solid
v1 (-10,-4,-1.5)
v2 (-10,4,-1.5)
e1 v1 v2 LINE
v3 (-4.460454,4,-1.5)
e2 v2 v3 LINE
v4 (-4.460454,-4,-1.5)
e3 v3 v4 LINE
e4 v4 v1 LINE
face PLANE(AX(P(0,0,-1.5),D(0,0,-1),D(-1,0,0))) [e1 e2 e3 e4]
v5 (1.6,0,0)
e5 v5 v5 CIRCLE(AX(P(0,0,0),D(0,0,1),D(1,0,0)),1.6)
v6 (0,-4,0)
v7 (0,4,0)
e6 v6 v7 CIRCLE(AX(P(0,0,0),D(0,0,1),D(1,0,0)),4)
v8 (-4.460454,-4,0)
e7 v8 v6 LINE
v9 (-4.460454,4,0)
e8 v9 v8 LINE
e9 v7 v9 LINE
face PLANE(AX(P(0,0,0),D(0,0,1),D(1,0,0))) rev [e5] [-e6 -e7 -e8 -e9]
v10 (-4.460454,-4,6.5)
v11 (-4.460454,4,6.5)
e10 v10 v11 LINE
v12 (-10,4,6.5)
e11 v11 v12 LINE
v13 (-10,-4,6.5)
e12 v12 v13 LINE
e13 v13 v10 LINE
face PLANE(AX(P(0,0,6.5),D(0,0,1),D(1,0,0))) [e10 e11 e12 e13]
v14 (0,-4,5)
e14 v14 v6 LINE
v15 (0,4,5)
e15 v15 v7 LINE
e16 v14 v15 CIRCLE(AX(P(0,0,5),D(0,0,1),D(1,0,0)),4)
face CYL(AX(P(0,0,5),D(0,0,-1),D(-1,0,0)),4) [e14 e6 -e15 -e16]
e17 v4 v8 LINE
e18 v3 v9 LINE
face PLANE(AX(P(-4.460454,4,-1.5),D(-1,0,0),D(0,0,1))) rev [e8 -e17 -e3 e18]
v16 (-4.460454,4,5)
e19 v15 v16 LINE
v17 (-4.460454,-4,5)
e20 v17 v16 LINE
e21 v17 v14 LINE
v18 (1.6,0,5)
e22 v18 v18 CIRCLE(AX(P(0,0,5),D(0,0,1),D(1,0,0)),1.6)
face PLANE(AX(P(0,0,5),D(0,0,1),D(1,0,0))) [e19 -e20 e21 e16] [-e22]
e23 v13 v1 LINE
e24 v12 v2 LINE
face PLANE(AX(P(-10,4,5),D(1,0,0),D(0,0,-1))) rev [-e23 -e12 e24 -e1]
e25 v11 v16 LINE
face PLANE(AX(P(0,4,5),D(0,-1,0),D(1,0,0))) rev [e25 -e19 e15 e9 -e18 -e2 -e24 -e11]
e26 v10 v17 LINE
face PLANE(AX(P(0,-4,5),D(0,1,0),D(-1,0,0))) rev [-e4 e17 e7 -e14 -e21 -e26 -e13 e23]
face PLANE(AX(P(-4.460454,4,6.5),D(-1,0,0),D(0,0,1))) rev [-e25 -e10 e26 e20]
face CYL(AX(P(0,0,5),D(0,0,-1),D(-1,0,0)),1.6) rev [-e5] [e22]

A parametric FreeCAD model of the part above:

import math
import FreeCAD as App
import Part
import Sketcher


def add_polygon(sketch, points):
    """Adds a closed chain of lines whose ends are joined by coincident constraints."""
    first, n = sketch.GeometryCount, len(points)
    for a, b in zip(points, points[1:] + points[:1]):
        sketch.addGeometry(Part.LineSegment(App.Vector(*a, 0), App.Vector(*b, 0)), False)
    for i in range(n):
        sketch.addConstraint(Sketcher.Constraint("Coincident", first + i, 2, first + (i + 1) % n, 1))

doc = App.newDocument("Part")
body = doc.addObject("PartDesign::Body", "Body")

sketch1 = body.newObject("Sketcher::SketchObject", "Sketch")
sketch1.AttachmentSupport = (doc.getObject("XY_Plane"), [""])
sketch1.MapMode = "FlatFace"
sketch1.addGeometry([
    Part.LineSegment(App.Vector(0, 4, 0), App.Vector(-10, 4, 0)),
    Part.LineSegment(App.Vector(-10, 4, 0), App.Vector(-10, -4, 0)),
    Part.LineSegment(App.Vector(-10, -4, 0), App.Vector(0, -4, 0)),
    Part.ArcOfCircle(Part.Circle(App.Vector(0, 0, 0), App.Vector(0, 0, 1), 4), math.radians(-90), math.radians(90)),
    Part.Circle(App.Vector(0, 0, 0), App.Vector(0, 0, 1), 1.6),
], False)
sketch1.addConstraint([
    Sketcher.Constraint("Coincident", 0, 2, 1, 1),
    Sketcher.Constraint("Coincident", 1, 2, 2, 1),
    Sketcher.Constraint("Tangent", 2, 2, 3, 1),
    Sketcher.Constraint("Tangent", 3, 2, 0, 1),
    Sketcher.Constraint("Horizontal", 0),
    Sketcher.Constraint("Vertical", 1),
    Sketcher.Constraint("Horizontal", 2),
    Sketcher.Constraint("Coincident", 3, 3, -1, 1),
    Sketcher.Constraint("Coincident", 4, 3, -1, 1),
    Sketcher.Constraint("Radius", 3, 4.0),
    Sketcher.Constraint("Diameter", 4, 3.2),
    Sketcher.Constraint("DistanceX", 0, 2, 0, 1, 10.0),
])
pad1 = body.newObject("PartDesign::Pad", "Pad")
pad1.Profile = sketch1
pad1.Length = 5

sketch2 = body.newObject("Sketcher::SketchObject", "Sketch001")
sketch2.AttachmentSupport = (doc.getObject("XY_Plane"), [""])
sketch2.MapMode = "FlatFace"
sketch2.AttachmentOffset = App.Placement(App.Vector(0, 0, 5), App.Rotation())
add_polygon(sketch2, [(-10, 4), (-10, -4), (-4, -4), (-4, 4)])
sketch2.addConstraint([
    Sketcher.Constraint("Vertical", 0),
    Sketcher.Constraint("Horizontal", 1),
    Sketcher.Constraint("Vertical", 2),
    Sketcher.Constraint("Horizontal", 3),
    Sketcher.Constraint("DistanceY", 0, 2, 0, 1, 8.0),
    Sketcher.Constraint("DistanceX", 0, 2, -1, 1, 10.0),
    Sketcher.Constraint("DistanceY", 0, 2, -1, 1, 4.0),
    Sketcher.Constraint("DistanceX", 1, 1, 1, 2, 5.539546),
])
pad2 = body.newObject("PartDesign::Pad", "Pad001")
pad2.Profile = sketch2
pad2.Length = 1.5

sketch3 = body.newObject("Sketcher::SketchObject", "Sketch002")
sketch3.AttachmentSupport = (doc.getObject("XY_Plane"), [""])
sketch3.MapMode = "FlatFace"
add_polygon(sketch3, [(-4, 4), (-4, -4), (-10, -4), (-10, 4)])
sketch3.addConstraint([
    Sketcher.Constraint("Vertical", 0),
    Sketcher.Constraint("Horizontal", 1),
    Sketcher.Constraint("Vertical", 2),
    Sketcher.Constraint("Horizontal", 3),
    Sketcher.Constraint("DistanceY", 0, 2, 0, 1, 8.0),
    Sketcher.Constraint("DistanceY", 0, 2, -1, 1, 4.0),
    Sketcher.Constraint("DistanceX", 1, 2, -1, 1, 10.0),
    Sketcher.Constraint("DistanceX", 1, 2, 1, 1, 5.539546),
])
pad3 = body.newObject("PartDesign::Pad", "Pad002")
pad3.Profile = sketch3
pad3.Length = 1.5
pad3.Reversed = True

doc.recompute()
